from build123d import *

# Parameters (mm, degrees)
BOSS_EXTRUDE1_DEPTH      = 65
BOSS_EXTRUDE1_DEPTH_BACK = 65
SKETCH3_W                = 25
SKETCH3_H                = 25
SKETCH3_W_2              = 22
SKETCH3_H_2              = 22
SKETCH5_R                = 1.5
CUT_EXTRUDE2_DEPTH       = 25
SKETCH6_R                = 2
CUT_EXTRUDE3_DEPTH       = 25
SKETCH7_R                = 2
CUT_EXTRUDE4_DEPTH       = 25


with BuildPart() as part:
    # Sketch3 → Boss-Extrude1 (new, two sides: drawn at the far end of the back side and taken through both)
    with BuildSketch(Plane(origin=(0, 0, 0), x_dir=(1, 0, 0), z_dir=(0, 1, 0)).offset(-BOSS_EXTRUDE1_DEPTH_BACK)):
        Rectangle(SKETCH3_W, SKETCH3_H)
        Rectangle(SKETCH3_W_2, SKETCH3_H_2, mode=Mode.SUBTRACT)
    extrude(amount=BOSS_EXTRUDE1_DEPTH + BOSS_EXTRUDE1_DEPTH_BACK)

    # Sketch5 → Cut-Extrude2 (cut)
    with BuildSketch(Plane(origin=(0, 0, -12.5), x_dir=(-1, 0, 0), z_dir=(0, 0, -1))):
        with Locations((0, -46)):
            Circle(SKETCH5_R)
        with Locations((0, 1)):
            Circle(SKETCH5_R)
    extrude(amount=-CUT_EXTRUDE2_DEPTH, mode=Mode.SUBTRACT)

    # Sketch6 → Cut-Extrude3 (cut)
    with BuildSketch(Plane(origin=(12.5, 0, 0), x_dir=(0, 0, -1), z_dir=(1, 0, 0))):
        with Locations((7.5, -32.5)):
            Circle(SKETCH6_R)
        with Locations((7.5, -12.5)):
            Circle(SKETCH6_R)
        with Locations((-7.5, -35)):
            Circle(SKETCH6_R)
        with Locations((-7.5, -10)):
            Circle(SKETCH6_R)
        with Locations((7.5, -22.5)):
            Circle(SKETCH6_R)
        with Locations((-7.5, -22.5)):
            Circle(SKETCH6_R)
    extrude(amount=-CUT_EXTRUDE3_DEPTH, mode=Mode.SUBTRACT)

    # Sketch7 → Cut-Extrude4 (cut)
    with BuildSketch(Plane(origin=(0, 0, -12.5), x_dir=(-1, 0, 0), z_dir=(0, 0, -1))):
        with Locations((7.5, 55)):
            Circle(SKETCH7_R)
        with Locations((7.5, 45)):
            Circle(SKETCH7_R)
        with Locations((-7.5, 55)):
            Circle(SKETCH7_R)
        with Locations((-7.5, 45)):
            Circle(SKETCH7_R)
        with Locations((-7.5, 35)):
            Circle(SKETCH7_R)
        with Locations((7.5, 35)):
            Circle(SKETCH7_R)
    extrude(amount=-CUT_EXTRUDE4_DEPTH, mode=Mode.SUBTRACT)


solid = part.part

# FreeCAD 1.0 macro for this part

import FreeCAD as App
import Part
import Sketcher

doc = App.newDocument("Part")
params = doc.addObject("Spreadsheet::Sheet", "Params")
for row, (alias, value) in enumerate([
    ("sketch1_width", "25 mm"),
    ("sketch1_width2", "22 mm"),
    ("pad1_length", "65 mm"),
    ("pad1_length2", "65 mm"),
    ("sketch2_diameter", "3 mm"),
    ("pocket1_length", "25 mm"),
    ("sketch3_diameter", "4 mm"),
    ("pocket2_length", "25 mm"),
    ("sketch4_diameter", "4 mm"),
    ("pocket3_length", "25 mm"),
], start=1):
    params.set(f"A{row}", alias)
    params.set(f"B{row}", "=" + value)
    params.setAlias(f"B{row}", alias)

body = doc.addObject("PartDesign::Body", "Body")

sketch1 = doc.addObject("Sketcher::SketchObject", "Sketch")
body.addObject(sketch1)
sketch1.AttachmentSupport = (doc.XZ_Plane, [""])
sketch1.MapMode = "FlatFace"
sketch1.addGeometry(Part.LineSegment(App.Vector(-12, -12, 0), App.Vector(-12, 12, 0)), False)
sketch1.addGeometry(Part.LineSegment(App.Vector(-12, 12, 0), App.Vector(12, 12, 0)), False)
sketch1.addGeometry(Part.LineSegment(App.Vector(12, 12, 0), App.Vector(12, -12, 0)), False)
sketch1.addGeometry(Part.LineSegment(App.Vector(12, -12, 0), App.Vector(-12, -12, 0)), False)
sketch1.addGeometry(Part.LineSegment(App.Vector(11, 11, 0), App.Vector(-11, 11, 0)), False)
sketch1.addGeometry(Part.LineSegment(App.Vector(-11, 11, 0), App.Vector(-11, -11, 0)), False)
sketch1.addGeometry(Part.LineSegment(App.Vector(-11, -11, 0), App.Vector(11, -11, 0)), False)
sketch1.addGeometry(Part.LineSegment(App.Vector(11, -11, 0), App.Vector(11, 11, 0)), False)
sketch1.addConstraint(Sketcher.Constraint("Coincident", 0, 2, 1, 1))
sketch1.addConstraint(Sketcher.Constraint("Coincident", 1, 2, 2, 1))
sketch1.addConstraint(Sketcher.Constraint("Coincident", 2, 2, 3, 1))
sketch1.addConstraint(Sketcher.Constraint("Coincident", 3, 2, 0, 1))
sketch1.addConstraint(Sketcher.Constraint("Coincident", 4, 2, 5, 1))
sketch1.addConstraint(Sketcher.Constraint("Coincident", 5, 2, 6, 1))
sketch1.addConstraint(Sketcher.Constraint("Coincident", 6, 2, 7, 1))
sketch1.addConstraint(Sketcher.Constraint("Coincident", 7, 2, 4, 1))
sketch1.addConstraint(Sketcher.Constraint("Vertical", 0))
sketch1.addConstraint(Sketcher.Constraint("Horizontal", 1))
sketch1.addConstraint(Sketcher.Constraint("Vertical", 2))
sketch1.addConstraint(Sketcher.Constraint("Horizontal", 3))
sketch1.addConstraint(Sketcher.Constraint("Horizontal", 4))
sketch1.addConstraint(Sketcher.Constraint("Vertical", 5))
sketch1.addConstraint(Sketcher.Constraint("Horizontal", 6))
sketch1.addConstraint(Sketcher.Constraint("Vertical", 7))
sketch1.addConstraint(Sketcher.Constraint("Symmetric", 0, 2, 2, 2, -1, 1))
sketch1.addConstraint(Sketcher.Constraint("Symmetric", 4, 2, 6, 2, -1, 1))
sketch1.addConstraint(Sketcher.Constraint("Equal", 3, 0))
sketch1.addConstraint(Sketcher.Constraint("Equal", 6, 5))
sketch1.addConstraint(Sketcher.Constraint("DistanceX", 1, 1, 1, 2, 25.0))
sketch1.addConstraint(Sketcher.Constraint("DistanceX", 4, 2, 4, 1, 22.0))
sketch1.setExpression("Constraints[20]", "Params.sketch1_width")
sketch1.setExpression("Constraints[21]", "Params.sketch1_width2")
pad1 = doc.addObject("PartDesign::Pad", "Pad")
body.addObject(pad1)
pad1.Profile = sketch1
pad1.Type = "TwoLengths"
pad1.setExpression("Length", "Params.pad1_length")
pad1.setExpression("Length2", "Params.pad1_length2")
pad1.Reversed = True

sketch2 = doc.addObject("Sketcher::SketchObject", "Sketch001")
body.addObject(sketch2)
sketch2.AttachmentSupport = (doc.XY_Plane, [""])
sketch2.MapMode = "FlatFace"
sketch2.AttachmentOffset = App.Placement(App.Vector(0, 0, -12.5), App.Rotation())
sketch2.addGeometry(Part.Circle(App.Vector(0, -46, 0), App.Vector(0, 0, 1), 1.5), False)
sketch2.addGeometry(Part.Circle(App.Vector(0, 1, 0), App.Vector(0, 0, 1), 1.5), False)
sketch2.addConstraint(Sketcher.Constraint("Equal", 0, 1))
sketch2.addConstraint(Sketcher.Constraint("PointOnObject", 0, 3, -2))
sketch2.addConstraint(Sketcher.Constraint("PointOnObject", 1, 3, -2))
sketch2.addConstraint(Sketcher.Constraint("Diameter", 0, 3.0))
sketch2.addConstraint(Sketcher.Constraint("DistanceY", 0, 3, -1, 1, 46.0))
sketch2.addConstraint(Sketcher.Constraint("DistanceY", -1, 1, 1, 3, 1.0))
sketch2.setExpression("Constraints[3]", "Params.sketch2_diameter")
pocket1 = doc.addObject("PartDesign::Pocket", "Pocket")
body.addObject(pocket1)
pocket1.Profile = sketch2
pocket1.setExpression("Length", "Params.pocket1_length")
pocket1.Reversed = True

sketch3 = doc.addObject("Sketcher::SketchObject", "Sketch002")
body.addObject(sketch3)
sketch3.AttachmentSupport = (doc.YZ_Plane, [""])
sketch3.MapMode = "FlatFace"
sketch3.AttachmentOffset = App.Placement(App.Vector(0, 0, 12.5), App.Rotation())
sketch3.addGeometry(Part.Circle(App.Vector(-32.5, -7.5, 0), App.Vector(0, 0, 1), 2), False)
sketch3.addGeometry(Part.Circle(App.Vector(-12.5, -7.5, 0), App.Vector(0, 0, 1), 2), False)
sketch3.addGeometry(Part.Circle(App.Vector(-35, 7.5, 0), App.Vector(0, 0, 1), 2), False)
sketch3.addGeometry(Part.Circle(App.Vector(-10, 7.5, 0), App.Vector(0, 0, 1), 2), False)
sketch3.addGeometry(Part.Circle(App.Vector(-22.5, -7.5, 0), App.Vector(0, 0, 1), 2), False)
sketch3.addGeometry(Part.Circle(App.Vector(-22.5, 7.5, 0), App.Vector(0, 0, 1), 2), False)
sketch3.addConstraint(Sketcher.Constraint("Equal", 0, 1))
sketch3.addConstraint(Sketcher.Constraint("Equal", 1, 2))
sketch3.addConstraint(Sketcher.Constraint("Equal", 2, 3))
sketch3.addConstraint(Sketcher.Constraint("Equal", 3, 4))
sketch3.addConstraint(Sketcher.Constraint("Equal", 4, 5))
sketch3.addConstraint(Sketcher.Constraint("Symmetric", 4, 3, 5, 3, -1))
sketch3.addConstraint(Sketcher.Constraint("Horizontal", 0, 3, 1, 3))
sketch3.addConstraint(Sketcher.Constraint("Horizontal", 2, 3, 3, 3))
sketch3.addConstraint(Sketcher.Constraint("Horizontal", 1, 3, 4, 3))
sketch3.addConstraint(Sketcher.Constraint("Horizontal", 3, 3, 5, 3))
sketch3.addConstraint(Sketcher.Constraint("Diameter", 0, 4.0))
sketch3.addConstraint(Sketcher.Constraint("DistanceX", 2, 3, -1, 1, 35.0))
sketch3.addConstraint(Sketcher.Constraint("DistanceX", 3, 3, -1, 1, 10.0))
sketch3.addConstraint(Sketcher.Constraint("DistanceX", 0, 3, 1, 3, 20.0))
sketch3.addConstraint(Sketcher.Constraint("DistanceY", 0, 3, 2, 3, 15.0))
sketch3.addConstraint(Sketcher.Constraint("DistanceX", 0, 3, 4, 3, 10.0))
sketch3.addConstraint(Sketcher.Constraint("DistanceX", 0, 3, -1, 1, 32.5))
sketch3.setExpression("Constraints[10]", "Params.sketch3_diameter")
pocket2 = doc.addObject("PartDesign::Pocket", "Pocket001")
body.addObject(pocket2)
pocket2.Profile = sketch3
pocket2.setExpression("Length", "Params.pocket2_length")

sketch4 = doc.addObject("Sketcher::SketchObject", "Sketch003")
body.addObject(sketch4)
sketch4.AttachmentSupport = (doc.XY_Plane, [""])
sketch4.MapMode = "FlatFace"
sketch4.AttachmentOffset = App.Placement(App.Vector(0, 0, -12.5), App.Rotation())
sketch4.addGeometry(Part.Circle(App.Vector(-7.5, 55, 0), App.Vector(0, 0, 1), 2), False)
sketch4.addGeometry(Part.Circle(App.Vector(-7.5, 45, 0), App.Vector(0, 0, 1), 2), False)
sketch4.addGeometry(Part.Circle(App.Vector(7.5, 55, 0), App.Vector(0, 0, 1), 2), False)
sketch4.addGeometry(Part.Circle(App.Vector(7.5, 45, 0), App.Vector(0, 0, 1), 2), False)
sketch4.addGeometry(Part.Circle(App.Vector(7.5, 35, 0), App.Vector(0, 0, 1), 2), False)
sketch4.addGeometry(Part.Circle(App.Vector(-7.5, 35, 0), App.Vector(0, 0, 1), 2), False)
sketch4.addConstraint(Sketcher.Constraint("Equal", 0, 1))
sketch4.addConstraint(Sketcher.Constraint("Equal", 1, 2))
sketch4.addConstraint(Sketcher.Constraint("Equal", 2, 3))
sketch4.addConstraint(Sketcher.Constraint("Equal", 3, 4))
sketch4.addConstraint(Sketcher.Constraint("Equal", 4, 5))
sketch4.addConstraint(Sketcher.Constraint("Symmetric", 0, 3, 2, 3, -2))
sketch4.addConstraint(Sketcher.Constraint("Symmetric", 1, 3, 3, 3, -2))
sketch4.addConstraint(Sketcher.Constraint("Symmetric", 4, 3, 5, 3, -2))
sketch4.addConstraint(Sketcher.Constraint("Vertical", 0, 3, 1, 3))
sketch4.addConstraint(Sketcher.Constraint("Vertical", 3, 3, 4, 3))
sketch4.addConstraint(Sketcher.Constraint("Diameter", 0, 4.0))
sketch4.addConstraint(Sketcher.Constraint("DistanceY", -1, 1, 0, 3, 55.0))
sketch4.addConstraint(Sketcher.Constraint("DistanceY", -1, 1, 1, 3, 45.0))
sketch4.addConstraint(Sketcher.Constraint("DistanceY", -1, 1, 4, 3, 35.0))
sketch4.addConstraint(Sketcher.Constraint("DistanceX", 0, 3, 2, 3, 15.0))
sketch4.setExpression("Constraints[10]", "Params.sketch4_diameter")
pocket3 = doc.addObject("PartDesign::Pocket", "Pocket002")
body.addObject(pocket3)
pocket3.Profile = sketch4
pocket3.setExpression("Length", "Params.pocket3_length")
pocket3.Reversed = True

doc.recompute()
